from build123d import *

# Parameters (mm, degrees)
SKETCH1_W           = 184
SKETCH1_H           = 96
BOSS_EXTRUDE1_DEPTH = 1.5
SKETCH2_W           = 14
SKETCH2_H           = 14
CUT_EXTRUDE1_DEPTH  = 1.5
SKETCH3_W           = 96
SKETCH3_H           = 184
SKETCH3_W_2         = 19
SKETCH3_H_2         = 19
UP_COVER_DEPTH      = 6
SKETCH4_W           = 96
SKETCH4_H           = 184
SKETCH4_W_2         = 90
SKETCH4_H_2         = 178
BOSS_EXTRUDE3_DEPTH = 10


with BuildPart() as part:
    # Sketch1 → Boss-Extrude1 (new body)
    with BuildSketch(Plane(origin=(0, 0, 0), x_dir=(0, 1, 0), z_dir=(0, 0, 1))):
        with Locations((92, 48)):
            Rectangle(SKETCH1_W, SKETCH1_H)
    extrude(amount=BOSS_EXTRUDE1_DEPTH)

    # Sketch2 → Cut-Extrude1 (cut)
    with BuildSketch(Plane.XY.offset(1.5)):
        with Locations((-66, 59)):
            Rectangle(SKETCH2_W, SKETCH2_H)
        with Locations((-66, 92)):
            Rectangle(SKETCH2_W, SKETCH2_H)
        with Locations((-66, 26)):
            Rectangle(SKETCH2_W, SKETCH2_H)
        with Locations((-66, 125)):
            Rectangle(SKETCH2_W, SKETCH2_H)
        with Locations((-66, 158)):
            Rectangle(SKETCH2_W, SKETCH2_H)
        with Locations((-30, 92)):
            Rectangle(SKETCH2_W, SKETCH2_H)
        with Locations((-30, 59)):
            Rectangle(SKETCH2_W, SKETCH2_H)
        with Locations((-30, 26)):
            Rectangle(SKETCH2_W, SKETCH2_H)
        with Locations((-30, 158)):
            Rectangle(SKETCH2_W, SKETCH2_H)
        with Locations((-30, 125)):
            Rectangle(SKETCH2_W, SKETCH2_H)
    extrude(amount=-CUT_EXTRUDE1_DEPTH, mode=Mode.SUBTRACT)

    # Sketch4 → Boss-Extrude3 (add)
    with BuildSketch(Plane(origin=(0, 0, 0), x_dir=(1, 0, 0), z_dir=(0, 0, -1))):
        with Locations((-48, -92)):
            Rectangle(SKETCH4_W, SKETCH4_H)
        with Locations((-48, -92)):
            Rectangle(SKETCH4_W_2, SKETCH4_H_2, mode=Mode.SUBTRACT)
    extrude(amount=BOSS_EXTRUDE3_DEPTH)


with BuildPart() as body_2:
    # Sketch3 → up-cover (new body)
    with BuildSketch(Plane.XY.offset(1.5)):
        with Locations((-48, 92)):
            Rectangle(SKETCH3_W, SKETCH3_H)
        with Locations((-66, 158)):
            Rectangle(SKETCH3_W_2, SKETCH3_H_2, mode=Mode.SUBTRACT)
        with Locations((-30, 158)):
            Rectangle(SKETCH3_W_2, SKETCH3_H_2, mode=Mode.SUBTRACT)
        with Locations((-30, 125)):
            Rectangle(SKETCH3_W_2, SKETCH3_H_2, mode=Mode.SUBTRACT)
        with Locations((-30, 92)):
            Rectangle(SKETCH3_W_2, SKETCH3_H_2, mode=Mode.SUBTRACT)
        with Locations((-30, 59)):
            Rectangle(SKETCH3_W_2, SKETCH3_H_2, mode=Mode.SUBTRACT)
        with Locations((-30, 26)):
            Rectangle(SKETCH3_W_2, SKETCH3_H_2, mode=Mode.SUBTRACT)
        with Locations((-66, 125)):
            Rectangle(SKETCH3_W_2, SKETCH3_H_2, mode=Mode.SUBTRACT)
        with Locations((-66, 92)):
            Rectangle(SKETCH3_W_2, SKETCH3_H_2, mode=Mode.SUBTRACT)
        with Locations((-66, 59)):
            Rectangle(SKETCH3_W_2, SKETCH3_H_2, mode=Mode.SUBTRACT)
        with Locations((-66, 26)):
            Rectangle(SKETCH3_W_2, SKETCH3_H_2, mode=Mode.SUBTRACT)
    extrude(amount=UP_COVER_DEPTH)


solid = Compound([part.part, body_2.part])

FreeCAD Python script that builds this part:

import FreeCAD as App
import Part
import Sketcher
from FreeCAD import Vector
Q = App.Units.Quantity


def add_polygon(sketch, points):
    """Adds a closed chain of lines whose ends are joined by coincident constraints."""
    first, n = sketch.GeometryCount, len(points)
    for a, b in zip(points, points[1:] + points[:1]):
        sketch.addGeometry(Part.LineSegment(App.Vector(*a, 0), App.Vector(*b, 0)), False)
    for i in range(n):
        sketch.addConstraint(Sketcher.Constraint("Coincident", first + i, 2, first + (i + 1) % n, 1))

doc = App.newDocument("Part")
params = doc.addObject("Spreadsheet::Sheet", "Params")
for row, (alias, value) in enumerate([
    ("sketch1_width", "96 mm"),
    ("sketch1_height", "184 mm"),
    ("pad1_length", "1.5 mm"),
    ("sketch2_width", "14 mm"),
    ("pocket1_length", "1.5 mm"),
    ("sketch3_width", "96 mm"),
    ("sketch3_width2", "90 mm"),
    ("sketch3_height", "184 mm"),
    ("sketch3_height2", "178 mm"),
    ("pad2_length", "10 mm"),
    ("sketch4_width", "96 mm"),
    ("sketch4_width2", "19 mm"),
    ("sketch4_height", "184 mm"),
    ("pad3_length", "6 mm"),
], start=1):
    params.set(f"A{row}", alias)
    params.set(f"B{row}", "=" + value)
    params.setAlias(f"B{row}", alias)

body = doc.addObject("PartDesign::Body", "Body")

# Sketch on XY plane
sketch1 = body.newObject("Sketcher::SketchObject", "Sketch")
sketch1.AttachmentSupport = (doc.getObject("XY_Plane"), [""])
sketch1.MapMode = "FlatFace"
add_polygon(sketch1, [(-96, 0), (0, 0), (0, 184), (-96, 184)])  # lines 0-3
sketch1.addConstraint(Sketcher.Constraint("Horizontal", 0))
sketch1.addConstraint(Sketcher.Constraint("Vertical", 1))
sketch1.addConstraint(Sketcher.Constraint("Horizontal", 2))
sketch1.addConstraint(Sketcher.Constraint("Vertical", 3))
sketch1.addConstraint(Sketcher.Constraint("Coincident", 0, 2, -1, 1))
sketch1.addConstraint(Sketcher.Constraint("DistanceX", 0, 1, 0, 2, Q("96 mm")))
sketch1.addConstraint(Sketcher.Constraint("DistanceY", 1, 1, 1, 2, Q("184 mm")))
sketch1.setExpression("Constraints[9]", "Params.sketch1_width")
sketch1.setExpression("Constraints[10]", "Params.sketch1_height")
pad1 = body.newObject("PartDesign::Pad", "Pad")
pad1.Profile = sketch1
pad1.setExpression("Length", "Params.pad1_length")

# Sketch on XY plane
sketch2 = body.newObject("Sketcher::SketchObject", "Sketch001")
sketch2.AttachmentSupport = (doc.getObject("XY_Plane"), [""])
sketch2.MapMode = "FlatFace"
sketch2.AttachmentOffset = App.Placement(Vector(0, 0, 1.5), App.Rotation())
add_polygon(sketch2, [(-73, 66), (-73, 52), (-59, 52), (-59, 66)])  # lines 0-3
add_polygon(sketch2, [(-73, 99), (-73, 85), (-59, 85), (-59, 99)])  # lines 4-7
add_polygon(sketch2, [(-73, 33), (-73, 19), (-59, 19), (-59, 33)])  # lines 8-11
add_polygon(sketch2, [(-73, 132), (-73, 118), (-59, 118), (-59, 132)])  # lines 12-15
add_polygon(sketch2, [(-73, 165), (-73, 151), (-59, 151), (-59, 165)])  # lines 16-19
add_polygon(sketch2, [(-37, 99), (-37, 85), (-23, 85), (-23, 99)])  # lines 20-23
add_polygon(sketch2, [(-37, 66), (-37, 52), (-23, 52), (-23, 66)])  # lines 24-27
add_polygon(sketch2, [(-37, 33), (-37, 19), (-23, 19), (-23, 33)])  # lines 28-31
add_polygon(sketch2, [(-37, 165), (-37, 151), (-23, 151), (-23, 165)])  # lines 32-35
add_polygon(sketch2, [(-37, 132), (-37, 118), (-23, 118), (-23, 132)])  # lines 36-39
sketch2.addConstraint(Sketcher.Constraint("Vertical", 0))
sketch2.addConstraint(Sketcher.Constraint("Horizontal", 1))
sketch2.addConstraint(Sketcher.Constraint("Vertical", 2))
sketch2.addConstraint(Sketcher.Constraint("Horizontal", 3))
sketch2.addConstraint(Sketcher.Constraint("Vertical", 4))
sketch2.addConstraint(Sketcher.Constraint("Horizontal", 5))
sketch2.addConstraint(Sketcher.Constraint("Vertical", 6))
sketch2.addConstraint(Sketcher.Constraint("Horizontal", 7))
sketch2.addConstraint(Sketcher.Constraint("Vertical", 8))
sketch2.addConstraint(Sketcher.Constraint("Horizontal", 9))
sketch2.addConstraint(Sketcher.Constraint("Vertical", 10))
sketch2.addConstraint(Sketcher.Constraint("Horizontal", 11))
sketch2.addConstraint(Sketcher.Constraint("Vertical", 12))
sketch2.addConstraint(Sketcher.Constraint("Horizontal", 13))
sketch2.addConstraint(Sketcher.Constraint("Vertical", 14))
sketch2.addConstraint(Sketcher.Constraint("Horizontal", 15))
sketch2.addConstraint(Sketcher.Constraint("Vertical", 16))
sketch2.addConstraint(Sketcher.Constraint("Horizontal", 17))
sketch2.addConstraint(Sketcher.Constraint("Vertical", 18))
sketch2.addConstraint(Sketcher.Constraint("Horizontal", 19))
sketch2.addConstraint(Sketcher.Constraint("Vertical", 20))
sketch2.addConstraint(Sketcher.Constraint("Horizontal", 21))
sketch2.addConstraint(Sketcher.Constraint("Vertical", 22))
sketch2.addConstraint(Sketcher.Constraint("Horizontal", 23))
sketch2.addConstraint(Sketcher.Constraint("Vertical", 24))
sketch2.addConstraint(Sketcher.Constraint("Horizontal", 25))
sketch2.addConstraint(Sketcher.Constraint("Vertical", 26))
sketch2.addConstraint(Sketcher.Constraint("Horizontal", 27))
sketch2.addConstraint(Sketcher.Constraint("Vertical", 28))
sketch2.addConstraint(Sketcher.Constraint("Horizontal", 29))
sketch2.addConstraint(Sketcher.Constraint("Vertical", 30))
sketch2.addConstraint(Sketcher.Constraint("Horizontal", 31))
sketch2.addConstraint(Sketcher.Constraint("Vertical", 32))
sketch2.addConstraint(Sketcher.Constraint("Horizontal", 33))
sketch2.addConstraint(Sketcher.Constraint("Vertical", 34))
sketch2.addConstraint(Sketcher.Constraint("Horizontal", 35))
sketch2.addConstraint(Sketcher.Constraint("Vertical", 36))
sketch2.addConstraint(Sketcher.Constraint("Horizontal", 37))
sketch2.addConstraint(Sketcher.Constraint("Vertical", 38))
sketch2.addConstraint(Sketcher.Constraint("Horizontal", 39))
sketch2.addConstraint(Sketcher.Constraint("Horizontal", 5, 2, 20, 2))
sketch2.addConstraint(Sketcher.Constraint("Horizontal", 7, 2, 22, 2))
sketch2.addConstraint(Sketcher.Constraint("Horizontal", 1, 2, 24, 2))
sketch2.addConstraint(Sketcher.Constraint("Horizontal", 3, 2, 26, 2))
sketch2.addConstraint(Sketcher.Constraint("Horizontal", 9, 2, 28, 2))
sketch2.addConstraint(Sketcher.Constraint("Horizontal", 11, 2, 30, 2))
sketch2.addConstraint(Sketcher.Constraint("Horizontal", 17, 2, 32, 2))
sketch2.addConstraint(Sketcher.Constraint("Horizontal", 19, 2, 34, 2))
sketch2.addConstraint(Sketcher.Constraint("Horizontal", 13, 2, 36, 2))
sketch2.addConstraint(Sketcher.Constraint("Horizontal", 15, 2, 38, 2))
sketch2.addConstraint(Sketcher.Constraint("Vertical", 3, 2, 4, 2))
sketch2.addConstraint(Sketcher.Constraint("Vertical", 2, 2, 5, 2))
sketch2.addConstraint(Sketcher.Constraint("Vertical", 7, 2, 8, 2))
sketch2.addConstraint(Sketcher.Constraint("Vertical", 6, 2, 9, 2))
sketch2.addConstraint(Sketcher.Constraint("Vertical", 11, 2, 12, 2))
sketch2.addConstraint(Sketcher.Constraint("Vertical", 10, 2, 13, 2))
sketch2.addConstraint(Sketcher.Constraint("Vertical", 15, 2, 16, 2))
sketch2.addConstraint(Sketcher.Constraint("Vertical", 14, 2, 17, 2))
sketch2.addConstraint(Sketcher.Constraint("Vertical", 23, 2, 24, 2))
sketch2.addConstraint(Sketcher.Constraint("Vertical", 22, 2, 25, 2))
sketch2.addConstraint(Sketcher.Constraint("Vertical", 27, 2, 28, 2))
sketch2.addConstraint(Sketcher.Constraint("Vertical", 26, 2, 29, 2))
sketch2.addConstraint(Sketcher.Constraint("Vertical", 31, 2, 32, 2))
sketch2.addConstraint(Sketcher.Constraint("Vertical", 30, 2, 33, 2))
sketch2.addConstraint(Sketcher.Constraint("Vertical", 35, 2, 36, 2))
sketch2.addConstraint(Sketcher.Constraint("Vertical", 34, 2, 37, 2))
sketch2.addConstraint(Sketcher.Constraint("Equal", 19, 21))
sketch2.addConstraint(Sketcher.Constraint("Equal", 39, 0))
sketch2.addConstraint(Sketcher.Constraint("Equal", 2, 4))
sketch2.addConstraint(Sketcher.Constraint("Equal", 6, 8))
sketch2.addConstraint(Sketcher.Constraint("Equal", 10, 12))
sketch2.addConstraint(Sketcher.Constraint("Equal", 14, 16))
sketch2.addConstraint(Sketcher.Constraint("DistanceX", 1, 1, 1, 2, Q("14 mm")))
sketch2.addConstraint(Sketcher.Constraint("DistanceX", 0, 2, -1, 1, Q("73 mm")))
sketch2.addConstraint(Sketcher.Constraint("DistanceY", -1, 1, 0, 2, Q("52 mm")))
sketch2.addConstraint(Sketcher.Constraint("DistanceY", -1, 1, 4, 2, Q("85 mm")))
sketch2.addConstraint(Sketcher.Constraint("DistanceY", -1, 1, 8, 2, Q("19 mm")))
sketch2.addConstraint(Sketcher.Constraint("DistanceY", -1, 1, 12, 2, Q("118 mm")))
sketch2.addConstraint(Sketcher.Constraint("DistanceY", -1, 1, 16, 2, Q("151 mm")))
sketch2.addConstraint(Sketcher.Constraint("DistanceX", 20, 2, -1, 1, Q("37 mm")))
sketch2.setExpression("Constraints[112]", "Params.sketch2_width")
pocket1 = body.newObject("PartDesign::Pocket", "Pocket")
pocket1.Profile = sketch2
pocket1.setExpression("Length", "Params.pocket1_length")

# Sketch on XY plane
sketch3 = body.newObject("Sketcher::SketchObject", "Sketch002")
sketch3.AttachmentSupport = (doc.getObject("XY_Plane"), [""])
sketch3.MapMode = "FlatFace"
add_polygon(sketch3, [(-96, 0), (-96, 184), (0, 184), (0, 0)])  # lines 0-3
add_polygon(sketch3, [(-3, 181), (-93, 181), (-93, 3), (-3, 3)])  # lines 4-7
sketch3.addConstraint(Sketcher.Constraint("Vertical", 0))
sketch3.addConstraint(Sketcher.Constraint("Horizontal", 1))
sketch3.addConstraint(Sketcher.Constraint("Vertical", 2))
sketch3.addConstraint(Sketcher.Constraint("Horizontal", 3))
sketch3.addConstraint(Sketcher.Constraint("Horizontal", 4))
sketch3.addConstraint(Sketcher.Constraint("Vertical", 5))
sketch3.addConstraint(Sketcher.Constraint("Horizontal", 6))
sketch3.addConstraint(Sketcher.Constraint("Vertical", 7))
sketch3.addConstraint(Sketcher.Constraint("Coincident", 2, 2, -1, 1))
sketch3.addConstraint(Sketcher.Constraint("DistanceX", 1, 1, 1, 2, Q("96 mm")))
sketch3.addConstraint(Sketcher.Constraint("DistanceX", 4, 2, 4, 1, Q("90 mm")))
sketch3.addConstraint(Sketcher.Constraint("DistanceY", 0, 1, 0, 2, Q("184 mm")))
sketch3.addConstraint(Sketcher.Constraint("DistanceY", 5, 2, 5, 1, Q("178 mm")))
sketch3.addConstraint(Sketcher.Constraint("DistanceX", 4, 2, -1, 1, Q("93 mm")))
sketch3.addConstraint(Sketcher.Constraint("DistanceY", -1, 1, 4, 2, Q("181 mm")))
sketch3.setExpression("Constraints[17]", "Params.sketch3_width")
sketch3.setExpression("Constraints[18]", "Params.sketch3_width2")
sketch3.setExpression("Constraints[19]", "Params.sketch3_height")
sketch3.setExpression("Constraints[20]", "Params.sketch3_height2")
pad2 = body.newObject("PartDesign::Pad", "Pad001")
pad2.Profile = sketch3
pad2.setExpression("Length", "Params.pad2_length")
pad2.Reversed = True
body2 = doc.addObject("PartDesign::Body", "Body001")

# Sketch on XY plane
sketch4 = body2.newObject("Sketcher::SketchObject", "Sketch003")
sketch4.AttachmentSupport = (doc.getObject("XY_Plane001"), [""])
sketch4.MapMode = "FlatFace"
sketch4.AttachmentOffset = App.Placement(Vector(0, 0, 1.5), App.Rotation())
add_polygon(sketch4, [(-96, 184), (-96, 0), (0, 0), (0, 184)])  # lines 0-3
add_polygon(sketch4, [(-56.5, 16.5), (-75.5, 16.5), (-75.5, 35.5), (-56.5, 35.5)])  # lines 4-7
add_polygon(sketch4, [(-56.5, 49.5), (-75.5, 49.5), (-75.5, 68.5), (-56.5, 68.5)])  # lines 8-11
add_polygon(sketch4, [(-20.5, 16.5), (-39.5, 16.5), (-39.5, 35.5), (-20.5, 35.5)])  # lines 12-15
add_polygon(sketch4, [(-20.5, 49.5), (-39.5, 49.5), (-39.5, 68.5), (-20.5, 68.5)])  # lines 16-19
add_polygon(sketch4, [(-56.5, 82.5), (-75.5, 82.5), (-75.5, 101.5), (-56.5, 101.5)])  # lines 20-23
add_polygon(sketch4, [(-56.5, 115.5), (-75.5, 115.5), (-75.5, 134.5), (-56.5, 134.5)])  # lines 24-27
add_polygon(sketch4, [(-56.5, 148.5), (-75.5, 148.5), (-75.5, 167.5), (-56.5, 167.5)])  # lines 28-31
add_polygon(sketch4, [(-20.5, 82.5), (-39.5, 82.5), (-39.5, 101.5), (-20.5, 101.5)])  # lines 32-35
add_polygon(sketch4, [(-20.5, 115.5), (-39.5, 115.5), (-39.5, 134.5), (-20.5, 134.5)])  # lines 36-39
add_polygon(sketch4, [(-20.5, 148.5), (-39.5, 148.5), (-39.5, 167.5), (-20.5, 167.5)])  # lines 40-43
sketch4.addConstraint(Sketcher.Constraint("Vertical", 0))
sketch4.addConstraint(Sketcher.Constraint("Horizontal", 1))
sketch4.addConstraint(Sketcher.Constraint("Vertical", 2))
sketch4.addConstraint(Sketcher.Constraint("Horizontal", 3))
sketch4.addConstraint(Sketcher.Constraint("Horizontal", 4))
sketch4.addConstraint(Sketcher.Constraint("Vertical", 5))
sketch4.addConstraint(Sketcher.Constraint("Horizontal", 6))
sketch4.addConstraint(Sketcher.Constraint("Vertical", 7))
sketch4.addConstraint(Sketcher.Constraint("Horizontal", 8))
sketch4.addConstraint(Sketcher.Constraint("Vertical", 9))
sketch4.addConstraint(Sketcher.Constraint("Horizontal", 10))
sketch4.addConstraint(Sketcher.Constraint("Vertical", 11))
sketch4.addConstraint(Sketcher.Constraint("Horizontal", 12))
sketch4.addConstraint(Sketcher.Constraint("Vertical", 13))
sketch4.addConstraint(Sketcher.Constraint("Horizontal", 14))
sketch4.addConstraint(Sketcher.Constraint("Vertical", 15))
sketch4.addConstraint(Sketcher.Constraint("Horizontal", 16))
sketch4.addConstraint(Sketcher.Constraint("Vertical", 17))
sketch4.addConstraint(Sketcher.Constraint("Horizontal", 18))
sketch4.addConstraint(Sketcher.Constraint("Vertical", 19))
sketch4.addConstraint(Sketcher.Constraint("Horizontal", 20))
sketch4.addConstraint(Sketcher.Constraint("Vertical", 21))
sketch4.addConstraint(Sketcher.Constraint("Horizontal", 22))
sketch4.addConstraint(Sketcher.Constraint("Vertical", 23))
sketch4.addConstraint(Sketcher.Constraint("Horizontal", 24))
sketch4.addConstraint(Sketcher.Constraint("Vertical", 25))
sketch4.addConstraint(Sketcher.Constraint("Horizontal", 26))
sketch4.addConstraint(Sketcher.Constraint("Vertical", 27))
sketch4.addConstraint(Sketcher.Constraint("Horizontal", 28))
sketch4.addConstraint(Sketcher.Constraint("Vertical", 29))
sketch4.addConstraint(Sketcher.Constraint("Horizontal", 30))
sketch4.addConstraint(Sketcher.Constraint("Vertical", 31))
sketch4.addConstraint(Sketcher.Constraint("Horizontal", 32))
sketch4.addConstraint(Sketcher.Constraint("Vertical", 33))
sketch4.addConstraint(Sketcher.Constraint("Horizontal", 34))
sketch4.addConstraint(Sketcher.Constraint("Vertical", 35))
sketch4.addConstraint(Sketcher.Constraint("Horizontal", 36))
sketch4.addConstraint(Sketcher.Constraint("Vertical", 37))
sketch4.addConstraint(Sketcher.Constraint("Horizontal", 38))
sketch4.addConstraint(Sketcher.Constraint("Vertical", 39))
sketch4.addConstraint(Sketcher.Constraint("Horizontal", 40))
sketch4.addConstraint(Sketcher.Constraint("Vertical", 41))
sketch4.addConstraint(Sketcher.Constraint("Horizontal", 42))
sketch4.addConstraint(Sketcher.Constraint("Vertical", 43))
sketch4.addConstraint(Sketcher.Constraint("Coincident", 1, 2, -1, 1))
sketch4.addConstraint(Sketcher.Constraint("Horizontal", 7, 2, 12, 2))
sketch4.addConstraint(Sketcher.Constraint("Horizontal", 6, 2, 13, 2))
sketch4.addConstraint(Sketcher.Constraint("Horizontal", 11, 2, 16, 2))
sketch4.addConstraint(Sketcher.Constraint("Horizontal", 10, 2, 17, 2))
sketch4.addConstraint(Sketcher.Constraint("Horizontal", 23, 2, 32, 2))
sketch4.addConstraint(Sketcher.Constraint("Horizontal", 22, 2, 33, 2))
sketch4.addConstraint(Sketcher.Constraint("Horizontal", 27, 2, 36, 2))
sketch4.addConstraint(Sketcher.Constraint("Horizontal", 26, 2, 37, 2))
sketch4.addConstraint(Sketcher.Constraint("Horizontal", 31, 2, 40, 2))
sketch4.addConstraint(Sketcher.Constraint("Horizontal", 30, 2, 41, 2))
sketch4.addConstraint(Sketcher.Constraint("Vertical", 5, 2, 8, 2))
sketch4.addConstraint(Sketcher.Constraint("Vertical", 7, 2, 10, 2))
sketch4.addConstraint(Sketcher.Constraint("Vertical", 13, 2, 16, 2))
sketch4.addConstraint(Sketcher.Constraint("Vertical", 15, 2, 18, 2))
sketch4.addConstraint(Sketcher.Constraint("Vertical", 9, 2, 20, 2))
sketch4.addConstraint(Sketcher.Constraint("Vertical", 11, 2, 22, 2))
sketch4.addConstraint(Sketcher.Constraint("Vertical", 21, 2, 24, 2))
sketch4.addConstraint(Sketcher.Constraint("Vertical", 23, 2, 26, 2))
sketch4.addConstraint(Sketcher.Constraint("Vertical", 25, 2, 28, 2))
sketch4.addConstraint(Sketcher.Constraint("Vertical", 27, 2, 30, 2))
sketch4.addConstraint(Sketcher.Constraint("Vertical", 17, 2, 32, 2))
sketch4.addConstraint(Sketcher.Constraint("Vertical", 19, 2, 34, 2))
sketch4.addConstraint(Sketcher.Constraint("Vertical", 33, 2, 36, 2))
sketch4.addConstraint(Sketcher.Constraint("Vertical", 35, 2, 38, 2))
sketch4.addConstraint(Sketcher.Constraint("Vertical", 37, 2, 40, 2))
sketch4.addConstraint(Sketcher.Constraint("Vertical", 39, 2, 42, 2))
sketch4.addConstraint(Sketcher.Constraint("Equal", 10, 12))
sketch4.addConstraint(Sketcher.Constraint("Equal", 42, 5))
sketch4.addConstraint(Sketcher.Constraint("Equal", 7, 9))
sketch4.addConstraint(Sketcher.Constraint("Equal", 19, 21))
sketch4.addConstraint(Sketcher.Constraint("Equal", 23, 25))
sketch4.addConstraint(Sketcher.Constraint("Equal", 27, 29))
sketch4.addConstraint(Sketcher.Constraint("DistanceX", 1, 1, 1, 2, Q("96 mm")))
sketch4.addConstraint(Sketcher.Constraint("DistanceX", 4, 2, 4, 1, Q("19 mm")))
sketch4.addConstraint(Sketcher.Constraint("DistanceY", 0, 2, 0, 1, Q("184 mm")))
sketch4.addConstraint(Sketcher.Constraint("DistanceY", 5, 2, 8, 2, Q("14 mm")))
sketch4.addConstraint(Sketcher.Constraint("DistanceX", 7, 2, 12, 2, Q("17 mm")))
sketch4.addConstraint(Sketcher.Constraint("DistanceY", 9, 2, 20, 2, Q("14 mm")))
sketch4.addConstraint(Sketcher.Constraint("DistanceY", 21, 2, 24, 2, Q("14 mm")))
sketch4.addConstraint(Sketcher.Constraint("DistanceY", 25, 2, 28, 2, Q("14 mm")))
sketch4.addConstraint(Sketcher.Constraint("DistanceX", 4, 2, -1, 1, Q("75.5 mm")))
sketch4.addConstraint(Sketcher.Constraint("DistanceY", -1, 1, 4, 2, Q("16.5 mm")))
sketch4.setExpression("Constraints[121]", "Params.sketch4_width")
sketch4.setExpression("Constraints[122]", "Params.sketch4_width2")
sketch4.setExpression("Constraints[123]", "Params.sketch4_height")
pad3 = body2.newObject("PartDesign::Pad", "Pad002")
pad3.Profile = sketch4
pad3.setExpression("Length", "Params.pad3_length")

doc.recompute()
